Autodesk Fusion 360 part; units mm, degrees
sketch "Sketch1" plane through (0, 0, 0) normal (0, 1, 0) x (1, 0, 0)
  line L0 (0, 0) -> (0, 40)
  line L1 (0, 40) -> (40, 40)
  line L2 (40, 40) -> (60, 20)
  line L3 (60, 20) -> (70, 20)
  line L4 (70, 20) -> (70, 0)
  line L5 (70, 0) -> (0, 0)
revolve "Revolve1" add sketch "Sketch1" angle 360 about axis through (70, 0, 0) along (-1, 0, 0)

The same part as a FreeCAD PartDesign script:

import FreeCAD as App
import Part
import Sketcher

V = App.Vector

doc = App.newDocument("Part")
params = doc.addObject("Spreadsheet::Sheet", "Params")
for row, (alias, value) in enumerate([
    ("sketch1_width", "70 mm"),
    ("sketch1_width2", "10 mm"),
    ("sketch1_width3", "40 mm"),
    ("sketch1_height", "20 mm"),
    ("revolution_angle", "360 deg"),
], start=1):
    params.set(f"A{row}", alias)
    params.set(f"B{row}", "=" + value)
    params.setAlias(f"B{row}", alias)

body = doc.addObject("PartDesign::Body", "Body")

# Sketch on XZ plane
sketch1 = body.newObject("Sketcher::SketchObject", "Sketch")
sketch1.AttachmentSupport = (doc.getObject("XZ_Plane"), [""])
sketch1.MapMode = "FlatFace"
sketch1.addGeometry([
    Part.LineSegment(V(0, -40, 0), V(0, 0, 0)),  # 0
    Part.LineSegment(V(0, 0, 0), V(70, 0, 0)),  # 1
    Part.LineSegment(V(70, 0, 0), V(70, -20, 0)),  # 2
    Part.LineSegment(V(70, -20, 0), V(60, -20, 0)),  # 3
    Part.LineSegment(V(60, -20, 0), V(40, -40, 0)),  # 4
    Part.LineSegment(V(40, -40, 0), V(0, -40, 0)),  # 5
], False)
sketch1.addConstraint([
    Sketcher.Constraint("Coincident", 0, 2, 1, 1),
    Sketcher.Constraint("Coincident", 1, 2, 2, 1),
    Sketcher.Constraint("Coincident", 2, 2, 3, 1),
    Sketcher.Constraint("Coincident", 3, 2, 4, 1),
    Sketcher.Constraint("Coincident", 4, 2, 5, 1),
    Sketcher.Constraint("Coincident", 5, 2, 0, 1),
    Sketcher.Constraint("Vertical", 0),
    Sketcher.Constraint("Horizontal", 1),
    Sketcher.Constraint("Vertical", 2),
    Sketcher.Constraint("Horizontal", 3),
    Sketcher.Constraint("Horizontal", 5),
    Sketcher.Constraint("Coincident", 0, 2, -1, 1),
    Sketcher.Constraint("Equal", 5, 0),
    Sketcher.Constraint("DistanceX", 1, 1, 1, 2, 70.0),
    Sketcher.Constraint("DistanceX", 3, 2, 3, 1, 10.0),
    Sketcher.Constraint("DistanceX", 5, 2, 5, 1, 40.0),
    Sketcher.Constraint("DistanceY", 2, 2, 2, 1, 20.0),
])
sketch1.setExpression("Constraints[13]", "Params.sketch1_width")
sketch1.setExpression("Constraints[14]", "Params.sketch1_width2")
sketch1.setExpression("Constraints[15]", "Params.sketch1_width3")
sketch1.setExpression("Constraints[16]", "Params.sketch1_height")
revolution = body.newObject("PartDesign::Revolution", "Revolution")
revolution.Profile = sketch1
revolution.ReferenceAxis = (sketch1, ["H_Axis"])
revolution.setExpression("Angle", "Params.revolution_angle")

doc.recompute()
